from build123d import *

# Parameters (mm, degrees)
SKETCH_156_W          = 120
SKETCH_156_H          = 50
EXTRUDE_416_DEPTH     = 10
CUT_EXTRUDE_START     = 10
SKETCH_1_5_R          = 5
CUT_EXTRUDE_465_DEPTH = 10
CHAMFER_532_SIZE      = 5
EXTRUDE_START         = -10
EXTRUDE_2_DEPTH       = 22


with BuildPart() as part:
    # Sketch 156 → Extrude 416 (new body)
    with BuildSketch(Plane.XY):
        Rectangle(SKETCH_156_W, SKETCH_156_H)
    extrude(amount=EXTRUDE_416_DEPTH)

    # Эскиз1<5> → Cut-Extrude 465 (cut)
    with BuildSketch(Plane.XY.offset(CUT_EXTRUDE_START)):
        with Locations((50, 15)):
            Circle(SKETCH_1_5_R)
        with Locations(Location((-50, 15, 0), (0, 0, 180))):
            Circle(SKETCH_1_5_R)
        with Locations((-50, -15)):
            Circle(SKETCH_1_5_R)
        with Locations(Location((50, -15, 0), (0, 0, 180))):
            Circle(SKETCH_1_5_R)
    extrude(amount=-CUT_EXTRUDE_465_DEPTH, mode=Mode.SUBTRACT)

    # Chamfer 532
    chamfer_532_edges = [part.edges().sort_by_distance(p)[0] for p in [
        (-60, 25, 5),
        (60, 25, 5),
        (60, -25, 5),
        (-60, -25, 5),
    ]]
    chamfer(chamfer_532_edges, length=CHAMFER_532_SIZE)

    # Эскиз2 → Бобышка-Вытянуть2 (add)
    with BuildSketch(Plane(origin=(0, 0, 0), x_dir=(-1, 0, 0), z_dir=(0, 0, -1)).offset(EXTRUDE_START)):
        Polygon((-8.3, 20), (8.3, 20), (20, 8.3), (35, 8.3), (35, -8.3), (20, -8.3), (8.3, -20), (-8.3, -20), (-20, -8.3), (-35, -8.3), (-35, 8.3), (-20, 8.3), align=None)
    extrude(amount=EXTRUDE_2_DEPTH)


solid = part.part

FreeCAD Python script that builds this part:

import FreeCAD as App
import Part
import Sketcher


def edges_at(feature, points):
    """Names of the edges that pass closest to the given points."""
    edges = feature.Shape.Edges
    near = lambda p: min(range(len(edges)), key=lambda i: edges[i].distToShape(Part.Vertex(*p))[0])
    return sorted({f"Edge{near(p) + 1}" for p in points})

doc = App.newDocument("Part")
body = doc.addObject("PartDesign::Body", "Body")

sketch1 = body.newObject("Sketcher::SketchObject", "Sketch")
sketch1.AttachmentSupport = (doc.getObject("XY_Plane"), [""])
sketch1.MapMode = "FlatFace"
sketch1.addGeometry([
    Part.LineSegment(App.Vector(-60, 25, 0), App.Vector(-60, -25, 0)),
    Part.LineSegment(App.Vector(-60, -25, 0), App.Vector(60, -25, 0)),
    Part.LineSegment(App.Vector(60, -25, 0), App.Vector(60, 25, 0)),
    Part.LineSegment(App.Vector(60, 25, 0), App.Vector(-60, 25, 0)),
], False)
sketch1.addConstraint([
    Sketcher.Constraint("Coincident", 0, 2, 1, 1),
    Sketcher.Constraint("Coincident", 1, 2, 2, 1),
    Sketcher.Constraint("Coincident", 2, 2, 3, 1),
    Sketcher.Constraint("Coincident", 3, 2, 0, 1),
    Sketcher.Constraint("Vertical", 0),
    Sketcher.Constraint("Horizontal", 1),
    Sketcher.Constraint("Vertical", 2),
    Sketcher.Constraint("Horizontal", 3),
    Sketcher.Constraint("Symmetric", 0, 2, 2, 2, -1, 1),
    Sketcher.Constraint("DistanceX", 1, 1, 1, 2, 120.0),
    Sketcher.Constraint("DistanceY", 0, 2, 0, 1, 50.0),
])
pad1 = body.newObject("PartDesign::Pad", "Pad")
pad1.Profile = sketch1
pad1.Length = 10

sketch2 = body.newObject("Sketcher::SketchObject", "Sketch001")
sketch2.AttachmentSupport = (doc.getObject("XY_Plane"), [""])
sketch2.MapMode = "FlatFace"
sketch2.AttachmentOffset = App.Placement(App.Vector(0, 0, 10), App.Rotation())
sketch2.addGeometry([
    Part.Circle(App.Vector(50, 15, 0), App.Vector(0, 0, 1), 5),
    Part.Circle(App.Vector(-50, 15, 0), App.Vector(0, 0, 1), 5),
    Part.Circle(App.Vector(-50, -15, 0), App.Vector(0, 0, 1), 5),
    Part.Circle(App.Vector(50, -15, 0), App.Vector(0, 0, 1), 5),
], False)
sketch2.addConstraint([
    Sketcher.Constraint("Equal", 0, 1),
    Sketcher.Constraint("Equal", 1, 2),
    Sketcher.Constraint("Equal", 2, 3),
    Sketcher.Constraint("Symmetric", 0, 3, 2, 3, -1, 1),
    Sketcher.Constraint("Symmetric", 1, 3, 3, 3, -1, 1),
    Sketcher.Constraint("Symmetric", 0, 3, 1, 3, -2),
    Sketcher.Constraint("Diameter", 0, 10.0),
    Sketcher.Constraint("DistanceX", -1, 1, 0, 3, 50.0),
    Sketcher.Constraint("DistanceY", -1, 1, 0, 3, 15.0),
])
pocket1 = body.newObject("PartDesign::Pocket", "Pocket")
pocket1.Profile = sketch2
pocket1.Length = 10
doc.recompute()

chamfer = body.newObject("PartDesign::Chamfer", "Chamfer")
chamfer.Base = (pocket1, edges_at(pocket1, [
    (-60, 25, 5),
    (60, 25, 5),
    (60, -25, 5),
    (-60, -25, 5),
]))
chamfer.Size = 5

sketch3 = body.newObject("Sketcher::SketchObject", "Sketch002")
sketch3.AttachmentSupport = (doc.getObject("XY_Plane"), [""])
sketch3.MapMode = "FlatFace"
sketch3.AttachmentOffset = App.Placement(App.Vector(0, 0, 10), App.Rotation())
sketch3.addGeometry([
    Part.LineSegment(App.Vector(-8, 20, 0), App.Vector(8, 20, 0)),
    Part.LineSegment(App.Vector(8, 20, 0), App.Vector(20, 8, 0)),
    Part.LineSegment(App.Vector(20, 8, 0), App.Vector(35, 8, 0)),
    Part.LineSegment(App.Vector(35, 8, 0), App.Vector(35, -8, 0)),
    Part.LineSegment(App.Vector(35, -8, 0), App.Vector(20, -8, 0)),
    Part.LineSegment(App.Vector(20, -8, 0), App.Vector(8, -20, 0)),
    Part.LineSegment(App.Vector(8, -20, 0), App.Vector(-8, -20, 0)),
    Part.LineSegment(App.Vector(-8, -20, 0), App.Vector(-20, -8, 0)),
    Part.LineSegment(App.Vector(-20, -8, 0), App.Vector(-35, -8, 0)),
    Part.LineSegment(App.Vector(-35, -8, 0), App.Vector(-35, 8, 0)),
    Part.LineSegment(App.Vector(-35, 8, 0), App.Vector(-20, 8, 0)),
    Part.LineSegment(App.Vector(-20, 8, 0), App.Vector(-8, 20, 0)),
], False)
sketch3.addConstraint([
    Sketcher.Constraint("Coincident", 0, 2, 1, 1),
    Sketcher.Constraint("Coincident", 1, 2, 2, 1),
    Sketcher.Constraint("Coincident", 2, 2, 3, 1),
    Sketcher.Constraint("Coincident", 3, 2, 4, 1),
    Sketcher.Constraint("Coincident", 4, 2, 5, 1),
    Sketcher.Constraint("Coincident", 5, 2, 6, 1),
    Sketcher.Constraint("Coincident", 6, 2, 7, 1),
    Sketcher.Constraint("Coincident", 7, 2, 8, 1),
    Sketcher.Constraint("Coincident", 8, 2, 9, 1),
    Sketcher.Constraint("Coincident", 9, 2, 10, 1),
    Sketcher.Constraint("Coincident", 10, 2, 11, 1),
    Sketcher.Constraint("Coincident", 11, 2, 0, 1),
    Sketcher.Constraint("Horizontal", 0),
    Sketcher.Constraint("Horizontal", 2),
    Sketcher.Constraint("Vertical", 3),
    Sketcher.Constraint("Horizontal", 4),
    Sketcher.Constraint("Horizontal", 6),
    Sketcher.Constraint("Horizontal", 8),
    Sketcher.Constraint("Vertical", 9),
    Sketcher.Constraint("Horizontal", 10),
    Sketcher.Constraint("Symmetric", 0, 2, 6, 2, -1, 1),
    Sketcher.Constraint("Symmetric", 1, 2, 7, 2, -1, 1),
    Sketcher.Constraint("Symmetric", 3, 2, 9, 2, -1, 1),
    Sketcher.Constraint("Symmetric", 4, 2, 7, 2, -2),
    Sketcher.Constraint("Perpendicular", 1, 5),
    Sketcher.Constraint("Perpendicular", 7, 11),
    Sketcher.Constraint("Vertical", 0, 2, 5, 2),
    Sketcher.Constraint("Vertical", 7, 2, 10, 2),
    Sketcher.Constraint("Equal", 6, 3),
    Sketcher.Constraint("DistanceX", 2, 1, 2, 2, 15.0),
    Sketcher.Constraint("DistanceX", 0, 1, 0, 2, 16.6),
    Sketcher.Constraint("DistanceY", -1, 1, 0, 2, 20.0),
])
pad2 = body.newObject("PartDesign::Pad", "Pad001")
pad2.Profile = sketch3
pad2.Length = 22
pad2.Reversed = True

doc.recompute()
